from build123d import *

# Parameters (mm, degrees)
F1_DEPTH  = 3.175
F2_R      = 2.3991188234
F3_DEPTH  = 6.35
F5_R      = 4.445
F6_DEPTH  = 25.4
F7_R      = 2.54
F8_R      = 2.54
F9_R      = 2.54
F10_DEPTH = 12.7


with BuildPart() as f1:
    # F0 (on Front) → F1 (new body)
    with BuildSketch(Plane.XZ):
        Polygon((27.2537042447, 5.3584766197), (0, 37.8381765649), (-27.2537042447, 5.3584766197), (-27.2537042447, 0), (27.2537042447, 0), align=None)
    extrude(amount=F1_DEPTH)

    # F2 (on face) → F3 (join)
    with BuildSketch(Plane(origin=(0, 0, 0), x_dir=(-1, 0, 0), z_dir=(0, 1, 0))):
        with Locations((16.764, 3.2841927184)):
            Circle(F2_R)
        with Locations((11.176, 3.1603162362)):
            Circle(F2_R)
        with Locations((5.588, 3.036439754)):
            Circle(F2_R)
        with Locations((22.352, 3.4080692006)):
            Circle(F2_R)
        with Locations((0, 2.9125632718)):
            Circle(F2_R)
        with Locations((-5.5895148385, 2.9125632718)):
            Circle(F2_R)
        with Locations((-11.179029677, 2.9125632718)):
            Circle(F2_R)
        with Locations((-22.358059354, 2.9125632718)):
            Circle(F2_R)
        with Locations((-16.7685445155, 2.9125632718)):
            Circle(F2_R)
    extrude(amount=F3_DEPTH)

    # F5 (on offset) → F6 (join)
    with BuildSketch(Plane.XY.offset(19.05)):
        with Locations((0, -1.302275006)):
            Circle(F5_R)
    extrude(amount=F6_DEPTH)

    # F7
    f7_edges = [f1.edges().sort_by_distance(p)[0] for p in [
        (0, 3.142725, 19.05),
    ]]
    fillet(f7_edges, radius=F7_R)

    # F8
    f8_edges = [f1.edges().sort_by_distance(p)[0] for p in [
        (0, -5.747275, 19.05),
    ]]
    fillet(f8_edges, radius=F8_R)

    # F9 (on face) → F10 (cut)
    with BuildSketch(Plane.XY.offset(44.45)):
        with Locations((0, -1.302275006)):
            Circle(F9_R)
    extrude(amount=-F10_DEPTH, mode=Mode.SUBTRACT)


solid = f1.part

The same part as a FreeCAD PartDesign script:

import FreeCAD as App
import Part
import Sketcher
from FreeCAD import Vector
Q = App.Units.Quantity


def edges_at(feature, points):
    """Names of the edges that pass closest to the given points."""
    edges = feature.Shape.Edges
    near = lambda p: min(range(len(edges)), key=lambda i: edges[i].distToShape(Part.Vertex(*p))[0])
    return sorted({f"Edge{near(p) + 1}" for p in points})


def add_polygon(sketch, points):
    """Adds a closed chain of lines whose ends are joined by coincident constraints."""
    first, n = sketch.GeometryCount, len(points)
    for a, b in zip(points, points[1:] + points[:1]):
        sketch.addGeometry(Part.LineSegment(App.Vector(*a, 0), App.Vector(*b, 0)), False)
    for i in range(n):
        sketch.addConstraint(Sketcher.Constraint("Coincident", first + i, 2, first + (i + 1) % n, 1))

doc = App.newDocument("Part")
params = doc.addObject("Spreadsheet::Sheet", "Params")
for row, (alias, value) in enumerate([
    ("pad1_length", "0.125 in"),
    ("pad2_length", "0.25 in"),
    ("sketch3_diameter", "0.35 in"),
    ("pad3_length", "1 in"),
    ("fillet_radius", "0.1 in"),
    ("fillet2_radius", "0.1 in"),
    ("sketch4_diameter", "0.2 in"),
    ("pocket1_length", "0.5 in"),
], start=1):
    params.set(f"A{row}", alias)
    params.set(f"B{row}", "=" + value)
    params.setAlias(f"B{row}", alias)

body = doc.addObject("PartDesign::Body", "Body")

# Sketch on XZ plane
sketch1 = body.newObject("Sketcher::SketchObject", "Sketch")
sketch1.AttachmentSupport = (doc.getObject("XZ_Plane"), [""])
sketch1.MapMode = "FlatFace"
add_polygon(sketch1, [(27, 5), (0, 38), (-27, 5), (-27, 0), (27, 0)])  # lines 0-4
sketch1.addConstraint([
    Sketcher.Constraint("Vertical", 2),
    Sketcher.Constraint("Horizontal", 3),
    Sketcher.Constraint("Vertical", 4),
    Sketcher.Constraint("Symmetric", 2, 2, 3, 2, -1, 1),
    Sketcher.Constraint("PointOnObject", 0, 2, -2),
    Sketcher.Constraint("Horizontal", 1, 2, 4, 2),
    Sketcher.Constraint("Angle", 0, Q("130 deg")),
    Sketcher.Constraint("DistanceX", 3, 1, 3, 2, Q("54.507408 mm")),
    Sketcher.Constraint("DistanceY", 2, 2, 2, 1, Q("5.358477 mm")),
])
pad1 = body.newObject("PartDesign::Pad", "Pad")
pad1.Profile = sketch1
pad1.setExpression("Length", "Params.pad1_length")

# Sketch on XZ plane
sketch2 = body.newObject("Sketcher::SketchObject", "Sketch001")
sketch2.AttachmentSupport = (doc.getObject("XZ_Plane"), [""])
sketch2.MapMode = "FlatFace"
sketch2.addGeometry([
    Part.Circle(Vector(-16.8, 3.3, 0), Vector(0, 0, 1), 2.4),  # 0
    Part.Circle(Vector(-11.2, 3.2, 0), Vector(0, 0, 1), 2.4),  # 1
    Part.Circle(Vector(-5.6, 3, 0), Vector(0, 0, 1), 2.4),  # 2
    Part.Circle(Vector(-22.4, 3.4, 0), Vector(0, 0, 1), 2.4),  # 3
    Part.Circle(Vector(0, 2.9, 0), Vector(0, 0, 1), 2.4),  # 4
    Part.Circle(Vector(5.6, 2.9, 0), Vector(0, 0, 1), 2.4),  # 5
    Part.Circle(Vector(11.2, 2.9, 0), Vector(0, 0, 1), 2.4),  # 6
    Part.Circle(Vector(22.4, 2.9, 0), Vector(0, 0, 1), 2.4),  # 7
    Part.Circle(Vector(16.8, 2.9, 0), Vector(0, 0, 1), 2.4),  # 8
], False)
sketch2.addConstraint([
    Sketcher.Constraint("Equal", 0, 1),
    Sketcher.Constraint("Equal", 1, 2),
    Sketcher.Constraint("Equal", 2, 3),
    Sketcher.Constraint("Equal", 3, 4),
    Sketcher.Constraint("Equal", 4, 5),
    Sketcher.Constraint("Equal", 5, 6),
    Sketcher.Constraint("Equal", 6, 7),
    Sketcher.Constraint("Equal", 7, 8),
    Sketcher.Constraint("PointOnObject", 4, 3, -2),
    Sketcher.Constraint("Horizontal", 4, 3, 5, 3),
    Sketcher.Constraint("Horizontal", 5, 3, 6, 3),
    Sketcher.Constraint("Horizontal", 6, 3, 7, 3),
    Sketcher.Constraint("Horizontal", 7, 3, 8, 3),
    Sketcher.Constraint("DistanceX", 0, 3, -1, 1, Q("0.66 in")),
    Sketcher.Constraint("DistanceX", 1, 3, -1, 1, Q("0.44 in")),
    Sketcher.Constraint("DistanceX", 2, 3, -1, 1, Q("0.22 in")),
    Sketcher.Constraint("DistanceX", 3, 3, -1, 1, Q("0.88 in")),
    Sketcher.Constraint("Diameter", 0, Q("4.798238 mm")),
    Sketcher.Constraint("DistanceY", -1, 1, 2, 3, Q("3.03644 mm")),
    Sketcher.Constraint("DistanceY", -1, 1, 3, 3, Q("3.408069 mm")),
    Sketcher.Constraint("DistanceX", -1, 1, 6, 3, Q("11.17903 mm")),
    Sketcher.Constraint("DistanceX", -1, 1, 7, 3, Q("22.358059 mm")),
    Sketcher.Constraint("DistanceY", 4, 3, 0, 3, Q("0.371629 mm")),
    Sketcher.Constraint("DistanceX", 5, 3, 8, 3, Q("11.17903 mm")),
    Sketcher.Constraint("DistanceY", -1, 1, 0, 3, Q("3.284193 mm")),
    Sketcher.Constraint("DistanceY", -1, 1, 1, 3, Q("3.160316 mm")),
    Sketcher.Constraint("DistanceX", -1, 1, 5, 3, Q("5.589515 mm")),
])
pad2 = body.newObject("PartDesign::Pad", "Pad001")
pad2.Profile = sketch2
pad2.setExpression("Length", "Params.pad2_length")
pad2.Reversed = True

# Sketch on XY plane
sketch3 = body.newObject("Sketcher::SketchObject", "Sketch002")
sketch3.AttachmentSupport = (doc.getObject("XY_Plane"), [""])
sketch3.MapMode = "FlatFace"
sketch3.AttachmentOffset = App.Placement(Vector(0, 0, 0.75 * 25.4), App.Rotation())
sketch3.addGeometry(Part.Circle(Vector(0, -1.3, 0), Vector(0, 0, 1), 4.4), False)
sketch3.addConstraint([
    Sketcher.Constraint("PointOnObject", 0, 3, -2),
    Sketcher.Constraint("Diameter", 0, Q("0.35 in")),
    Sketcher.Constraint("DistanceY", 0, 3, -1, 1, Q("1.302275 mm")),
])
sketch3.setExpression("Constraints[1]", "Params.sketch3_diameter")
pad3 = body.newObject("PartDesign::Pad", "Pad002")
pad3.Profile = sketch3
pad3.setExpression("Length", "Params.pad3_length")
doc.recompute()

fillet = body.newObject("PartDesign::Fillet", "Fillet")
fillet.Base = (pad3, edges_at(pad3, [(0, 3.143, 19.05)]))
fillet.setExpression("Radius", "Params.fillet_radius")
doc.recompute()

fillet2 = body.newObject("PartDesign::Fillet", "Fillet001")
fillet2.Base = (fillet, edges_at(fillet, [(0, -5.747, 19.05)]))
fillet2.setExpression("Radius", "Params.fillet2_radius")

# Sketch on XY plane
sketch4 = body.newObject("Sketcher::SketchObject", "Sketch003")
sketch4.AttachmentSupport = (doc.getObject("XY_Plane"), [""])
sketch4.MapMode = "FlatFace"
sketch4.AttachmentOffset = App.Placement(Vector(0, 0, 1.75 * 25.4), App.Rotation())
sketch4.addGeometry(Part.Circle(Vector(0, -1.3, 0), Vector(0, 0, 1), 2.5), False)
sketch4.addConstraint([
    Sketcher.Constraint("PointOnObject", 0, 3, -2),
    Sketcher.Constraint("Diameter", 0, Q("0.2 in")),
    Sketcher.Constraint("DistanceY", 0, 3, -1, 1, Q("1.302275 mm")),
])
sketch4.setExpression("Constraints[1]", "Params.sketch4_diameter")
pocket1 = body.newObject("PartDesign::Pocket", "Pocket")
pocket1.Profile = sketch4
pocket1.setExpression("Length", "Params.pocket1_length")

doc.recompute()
